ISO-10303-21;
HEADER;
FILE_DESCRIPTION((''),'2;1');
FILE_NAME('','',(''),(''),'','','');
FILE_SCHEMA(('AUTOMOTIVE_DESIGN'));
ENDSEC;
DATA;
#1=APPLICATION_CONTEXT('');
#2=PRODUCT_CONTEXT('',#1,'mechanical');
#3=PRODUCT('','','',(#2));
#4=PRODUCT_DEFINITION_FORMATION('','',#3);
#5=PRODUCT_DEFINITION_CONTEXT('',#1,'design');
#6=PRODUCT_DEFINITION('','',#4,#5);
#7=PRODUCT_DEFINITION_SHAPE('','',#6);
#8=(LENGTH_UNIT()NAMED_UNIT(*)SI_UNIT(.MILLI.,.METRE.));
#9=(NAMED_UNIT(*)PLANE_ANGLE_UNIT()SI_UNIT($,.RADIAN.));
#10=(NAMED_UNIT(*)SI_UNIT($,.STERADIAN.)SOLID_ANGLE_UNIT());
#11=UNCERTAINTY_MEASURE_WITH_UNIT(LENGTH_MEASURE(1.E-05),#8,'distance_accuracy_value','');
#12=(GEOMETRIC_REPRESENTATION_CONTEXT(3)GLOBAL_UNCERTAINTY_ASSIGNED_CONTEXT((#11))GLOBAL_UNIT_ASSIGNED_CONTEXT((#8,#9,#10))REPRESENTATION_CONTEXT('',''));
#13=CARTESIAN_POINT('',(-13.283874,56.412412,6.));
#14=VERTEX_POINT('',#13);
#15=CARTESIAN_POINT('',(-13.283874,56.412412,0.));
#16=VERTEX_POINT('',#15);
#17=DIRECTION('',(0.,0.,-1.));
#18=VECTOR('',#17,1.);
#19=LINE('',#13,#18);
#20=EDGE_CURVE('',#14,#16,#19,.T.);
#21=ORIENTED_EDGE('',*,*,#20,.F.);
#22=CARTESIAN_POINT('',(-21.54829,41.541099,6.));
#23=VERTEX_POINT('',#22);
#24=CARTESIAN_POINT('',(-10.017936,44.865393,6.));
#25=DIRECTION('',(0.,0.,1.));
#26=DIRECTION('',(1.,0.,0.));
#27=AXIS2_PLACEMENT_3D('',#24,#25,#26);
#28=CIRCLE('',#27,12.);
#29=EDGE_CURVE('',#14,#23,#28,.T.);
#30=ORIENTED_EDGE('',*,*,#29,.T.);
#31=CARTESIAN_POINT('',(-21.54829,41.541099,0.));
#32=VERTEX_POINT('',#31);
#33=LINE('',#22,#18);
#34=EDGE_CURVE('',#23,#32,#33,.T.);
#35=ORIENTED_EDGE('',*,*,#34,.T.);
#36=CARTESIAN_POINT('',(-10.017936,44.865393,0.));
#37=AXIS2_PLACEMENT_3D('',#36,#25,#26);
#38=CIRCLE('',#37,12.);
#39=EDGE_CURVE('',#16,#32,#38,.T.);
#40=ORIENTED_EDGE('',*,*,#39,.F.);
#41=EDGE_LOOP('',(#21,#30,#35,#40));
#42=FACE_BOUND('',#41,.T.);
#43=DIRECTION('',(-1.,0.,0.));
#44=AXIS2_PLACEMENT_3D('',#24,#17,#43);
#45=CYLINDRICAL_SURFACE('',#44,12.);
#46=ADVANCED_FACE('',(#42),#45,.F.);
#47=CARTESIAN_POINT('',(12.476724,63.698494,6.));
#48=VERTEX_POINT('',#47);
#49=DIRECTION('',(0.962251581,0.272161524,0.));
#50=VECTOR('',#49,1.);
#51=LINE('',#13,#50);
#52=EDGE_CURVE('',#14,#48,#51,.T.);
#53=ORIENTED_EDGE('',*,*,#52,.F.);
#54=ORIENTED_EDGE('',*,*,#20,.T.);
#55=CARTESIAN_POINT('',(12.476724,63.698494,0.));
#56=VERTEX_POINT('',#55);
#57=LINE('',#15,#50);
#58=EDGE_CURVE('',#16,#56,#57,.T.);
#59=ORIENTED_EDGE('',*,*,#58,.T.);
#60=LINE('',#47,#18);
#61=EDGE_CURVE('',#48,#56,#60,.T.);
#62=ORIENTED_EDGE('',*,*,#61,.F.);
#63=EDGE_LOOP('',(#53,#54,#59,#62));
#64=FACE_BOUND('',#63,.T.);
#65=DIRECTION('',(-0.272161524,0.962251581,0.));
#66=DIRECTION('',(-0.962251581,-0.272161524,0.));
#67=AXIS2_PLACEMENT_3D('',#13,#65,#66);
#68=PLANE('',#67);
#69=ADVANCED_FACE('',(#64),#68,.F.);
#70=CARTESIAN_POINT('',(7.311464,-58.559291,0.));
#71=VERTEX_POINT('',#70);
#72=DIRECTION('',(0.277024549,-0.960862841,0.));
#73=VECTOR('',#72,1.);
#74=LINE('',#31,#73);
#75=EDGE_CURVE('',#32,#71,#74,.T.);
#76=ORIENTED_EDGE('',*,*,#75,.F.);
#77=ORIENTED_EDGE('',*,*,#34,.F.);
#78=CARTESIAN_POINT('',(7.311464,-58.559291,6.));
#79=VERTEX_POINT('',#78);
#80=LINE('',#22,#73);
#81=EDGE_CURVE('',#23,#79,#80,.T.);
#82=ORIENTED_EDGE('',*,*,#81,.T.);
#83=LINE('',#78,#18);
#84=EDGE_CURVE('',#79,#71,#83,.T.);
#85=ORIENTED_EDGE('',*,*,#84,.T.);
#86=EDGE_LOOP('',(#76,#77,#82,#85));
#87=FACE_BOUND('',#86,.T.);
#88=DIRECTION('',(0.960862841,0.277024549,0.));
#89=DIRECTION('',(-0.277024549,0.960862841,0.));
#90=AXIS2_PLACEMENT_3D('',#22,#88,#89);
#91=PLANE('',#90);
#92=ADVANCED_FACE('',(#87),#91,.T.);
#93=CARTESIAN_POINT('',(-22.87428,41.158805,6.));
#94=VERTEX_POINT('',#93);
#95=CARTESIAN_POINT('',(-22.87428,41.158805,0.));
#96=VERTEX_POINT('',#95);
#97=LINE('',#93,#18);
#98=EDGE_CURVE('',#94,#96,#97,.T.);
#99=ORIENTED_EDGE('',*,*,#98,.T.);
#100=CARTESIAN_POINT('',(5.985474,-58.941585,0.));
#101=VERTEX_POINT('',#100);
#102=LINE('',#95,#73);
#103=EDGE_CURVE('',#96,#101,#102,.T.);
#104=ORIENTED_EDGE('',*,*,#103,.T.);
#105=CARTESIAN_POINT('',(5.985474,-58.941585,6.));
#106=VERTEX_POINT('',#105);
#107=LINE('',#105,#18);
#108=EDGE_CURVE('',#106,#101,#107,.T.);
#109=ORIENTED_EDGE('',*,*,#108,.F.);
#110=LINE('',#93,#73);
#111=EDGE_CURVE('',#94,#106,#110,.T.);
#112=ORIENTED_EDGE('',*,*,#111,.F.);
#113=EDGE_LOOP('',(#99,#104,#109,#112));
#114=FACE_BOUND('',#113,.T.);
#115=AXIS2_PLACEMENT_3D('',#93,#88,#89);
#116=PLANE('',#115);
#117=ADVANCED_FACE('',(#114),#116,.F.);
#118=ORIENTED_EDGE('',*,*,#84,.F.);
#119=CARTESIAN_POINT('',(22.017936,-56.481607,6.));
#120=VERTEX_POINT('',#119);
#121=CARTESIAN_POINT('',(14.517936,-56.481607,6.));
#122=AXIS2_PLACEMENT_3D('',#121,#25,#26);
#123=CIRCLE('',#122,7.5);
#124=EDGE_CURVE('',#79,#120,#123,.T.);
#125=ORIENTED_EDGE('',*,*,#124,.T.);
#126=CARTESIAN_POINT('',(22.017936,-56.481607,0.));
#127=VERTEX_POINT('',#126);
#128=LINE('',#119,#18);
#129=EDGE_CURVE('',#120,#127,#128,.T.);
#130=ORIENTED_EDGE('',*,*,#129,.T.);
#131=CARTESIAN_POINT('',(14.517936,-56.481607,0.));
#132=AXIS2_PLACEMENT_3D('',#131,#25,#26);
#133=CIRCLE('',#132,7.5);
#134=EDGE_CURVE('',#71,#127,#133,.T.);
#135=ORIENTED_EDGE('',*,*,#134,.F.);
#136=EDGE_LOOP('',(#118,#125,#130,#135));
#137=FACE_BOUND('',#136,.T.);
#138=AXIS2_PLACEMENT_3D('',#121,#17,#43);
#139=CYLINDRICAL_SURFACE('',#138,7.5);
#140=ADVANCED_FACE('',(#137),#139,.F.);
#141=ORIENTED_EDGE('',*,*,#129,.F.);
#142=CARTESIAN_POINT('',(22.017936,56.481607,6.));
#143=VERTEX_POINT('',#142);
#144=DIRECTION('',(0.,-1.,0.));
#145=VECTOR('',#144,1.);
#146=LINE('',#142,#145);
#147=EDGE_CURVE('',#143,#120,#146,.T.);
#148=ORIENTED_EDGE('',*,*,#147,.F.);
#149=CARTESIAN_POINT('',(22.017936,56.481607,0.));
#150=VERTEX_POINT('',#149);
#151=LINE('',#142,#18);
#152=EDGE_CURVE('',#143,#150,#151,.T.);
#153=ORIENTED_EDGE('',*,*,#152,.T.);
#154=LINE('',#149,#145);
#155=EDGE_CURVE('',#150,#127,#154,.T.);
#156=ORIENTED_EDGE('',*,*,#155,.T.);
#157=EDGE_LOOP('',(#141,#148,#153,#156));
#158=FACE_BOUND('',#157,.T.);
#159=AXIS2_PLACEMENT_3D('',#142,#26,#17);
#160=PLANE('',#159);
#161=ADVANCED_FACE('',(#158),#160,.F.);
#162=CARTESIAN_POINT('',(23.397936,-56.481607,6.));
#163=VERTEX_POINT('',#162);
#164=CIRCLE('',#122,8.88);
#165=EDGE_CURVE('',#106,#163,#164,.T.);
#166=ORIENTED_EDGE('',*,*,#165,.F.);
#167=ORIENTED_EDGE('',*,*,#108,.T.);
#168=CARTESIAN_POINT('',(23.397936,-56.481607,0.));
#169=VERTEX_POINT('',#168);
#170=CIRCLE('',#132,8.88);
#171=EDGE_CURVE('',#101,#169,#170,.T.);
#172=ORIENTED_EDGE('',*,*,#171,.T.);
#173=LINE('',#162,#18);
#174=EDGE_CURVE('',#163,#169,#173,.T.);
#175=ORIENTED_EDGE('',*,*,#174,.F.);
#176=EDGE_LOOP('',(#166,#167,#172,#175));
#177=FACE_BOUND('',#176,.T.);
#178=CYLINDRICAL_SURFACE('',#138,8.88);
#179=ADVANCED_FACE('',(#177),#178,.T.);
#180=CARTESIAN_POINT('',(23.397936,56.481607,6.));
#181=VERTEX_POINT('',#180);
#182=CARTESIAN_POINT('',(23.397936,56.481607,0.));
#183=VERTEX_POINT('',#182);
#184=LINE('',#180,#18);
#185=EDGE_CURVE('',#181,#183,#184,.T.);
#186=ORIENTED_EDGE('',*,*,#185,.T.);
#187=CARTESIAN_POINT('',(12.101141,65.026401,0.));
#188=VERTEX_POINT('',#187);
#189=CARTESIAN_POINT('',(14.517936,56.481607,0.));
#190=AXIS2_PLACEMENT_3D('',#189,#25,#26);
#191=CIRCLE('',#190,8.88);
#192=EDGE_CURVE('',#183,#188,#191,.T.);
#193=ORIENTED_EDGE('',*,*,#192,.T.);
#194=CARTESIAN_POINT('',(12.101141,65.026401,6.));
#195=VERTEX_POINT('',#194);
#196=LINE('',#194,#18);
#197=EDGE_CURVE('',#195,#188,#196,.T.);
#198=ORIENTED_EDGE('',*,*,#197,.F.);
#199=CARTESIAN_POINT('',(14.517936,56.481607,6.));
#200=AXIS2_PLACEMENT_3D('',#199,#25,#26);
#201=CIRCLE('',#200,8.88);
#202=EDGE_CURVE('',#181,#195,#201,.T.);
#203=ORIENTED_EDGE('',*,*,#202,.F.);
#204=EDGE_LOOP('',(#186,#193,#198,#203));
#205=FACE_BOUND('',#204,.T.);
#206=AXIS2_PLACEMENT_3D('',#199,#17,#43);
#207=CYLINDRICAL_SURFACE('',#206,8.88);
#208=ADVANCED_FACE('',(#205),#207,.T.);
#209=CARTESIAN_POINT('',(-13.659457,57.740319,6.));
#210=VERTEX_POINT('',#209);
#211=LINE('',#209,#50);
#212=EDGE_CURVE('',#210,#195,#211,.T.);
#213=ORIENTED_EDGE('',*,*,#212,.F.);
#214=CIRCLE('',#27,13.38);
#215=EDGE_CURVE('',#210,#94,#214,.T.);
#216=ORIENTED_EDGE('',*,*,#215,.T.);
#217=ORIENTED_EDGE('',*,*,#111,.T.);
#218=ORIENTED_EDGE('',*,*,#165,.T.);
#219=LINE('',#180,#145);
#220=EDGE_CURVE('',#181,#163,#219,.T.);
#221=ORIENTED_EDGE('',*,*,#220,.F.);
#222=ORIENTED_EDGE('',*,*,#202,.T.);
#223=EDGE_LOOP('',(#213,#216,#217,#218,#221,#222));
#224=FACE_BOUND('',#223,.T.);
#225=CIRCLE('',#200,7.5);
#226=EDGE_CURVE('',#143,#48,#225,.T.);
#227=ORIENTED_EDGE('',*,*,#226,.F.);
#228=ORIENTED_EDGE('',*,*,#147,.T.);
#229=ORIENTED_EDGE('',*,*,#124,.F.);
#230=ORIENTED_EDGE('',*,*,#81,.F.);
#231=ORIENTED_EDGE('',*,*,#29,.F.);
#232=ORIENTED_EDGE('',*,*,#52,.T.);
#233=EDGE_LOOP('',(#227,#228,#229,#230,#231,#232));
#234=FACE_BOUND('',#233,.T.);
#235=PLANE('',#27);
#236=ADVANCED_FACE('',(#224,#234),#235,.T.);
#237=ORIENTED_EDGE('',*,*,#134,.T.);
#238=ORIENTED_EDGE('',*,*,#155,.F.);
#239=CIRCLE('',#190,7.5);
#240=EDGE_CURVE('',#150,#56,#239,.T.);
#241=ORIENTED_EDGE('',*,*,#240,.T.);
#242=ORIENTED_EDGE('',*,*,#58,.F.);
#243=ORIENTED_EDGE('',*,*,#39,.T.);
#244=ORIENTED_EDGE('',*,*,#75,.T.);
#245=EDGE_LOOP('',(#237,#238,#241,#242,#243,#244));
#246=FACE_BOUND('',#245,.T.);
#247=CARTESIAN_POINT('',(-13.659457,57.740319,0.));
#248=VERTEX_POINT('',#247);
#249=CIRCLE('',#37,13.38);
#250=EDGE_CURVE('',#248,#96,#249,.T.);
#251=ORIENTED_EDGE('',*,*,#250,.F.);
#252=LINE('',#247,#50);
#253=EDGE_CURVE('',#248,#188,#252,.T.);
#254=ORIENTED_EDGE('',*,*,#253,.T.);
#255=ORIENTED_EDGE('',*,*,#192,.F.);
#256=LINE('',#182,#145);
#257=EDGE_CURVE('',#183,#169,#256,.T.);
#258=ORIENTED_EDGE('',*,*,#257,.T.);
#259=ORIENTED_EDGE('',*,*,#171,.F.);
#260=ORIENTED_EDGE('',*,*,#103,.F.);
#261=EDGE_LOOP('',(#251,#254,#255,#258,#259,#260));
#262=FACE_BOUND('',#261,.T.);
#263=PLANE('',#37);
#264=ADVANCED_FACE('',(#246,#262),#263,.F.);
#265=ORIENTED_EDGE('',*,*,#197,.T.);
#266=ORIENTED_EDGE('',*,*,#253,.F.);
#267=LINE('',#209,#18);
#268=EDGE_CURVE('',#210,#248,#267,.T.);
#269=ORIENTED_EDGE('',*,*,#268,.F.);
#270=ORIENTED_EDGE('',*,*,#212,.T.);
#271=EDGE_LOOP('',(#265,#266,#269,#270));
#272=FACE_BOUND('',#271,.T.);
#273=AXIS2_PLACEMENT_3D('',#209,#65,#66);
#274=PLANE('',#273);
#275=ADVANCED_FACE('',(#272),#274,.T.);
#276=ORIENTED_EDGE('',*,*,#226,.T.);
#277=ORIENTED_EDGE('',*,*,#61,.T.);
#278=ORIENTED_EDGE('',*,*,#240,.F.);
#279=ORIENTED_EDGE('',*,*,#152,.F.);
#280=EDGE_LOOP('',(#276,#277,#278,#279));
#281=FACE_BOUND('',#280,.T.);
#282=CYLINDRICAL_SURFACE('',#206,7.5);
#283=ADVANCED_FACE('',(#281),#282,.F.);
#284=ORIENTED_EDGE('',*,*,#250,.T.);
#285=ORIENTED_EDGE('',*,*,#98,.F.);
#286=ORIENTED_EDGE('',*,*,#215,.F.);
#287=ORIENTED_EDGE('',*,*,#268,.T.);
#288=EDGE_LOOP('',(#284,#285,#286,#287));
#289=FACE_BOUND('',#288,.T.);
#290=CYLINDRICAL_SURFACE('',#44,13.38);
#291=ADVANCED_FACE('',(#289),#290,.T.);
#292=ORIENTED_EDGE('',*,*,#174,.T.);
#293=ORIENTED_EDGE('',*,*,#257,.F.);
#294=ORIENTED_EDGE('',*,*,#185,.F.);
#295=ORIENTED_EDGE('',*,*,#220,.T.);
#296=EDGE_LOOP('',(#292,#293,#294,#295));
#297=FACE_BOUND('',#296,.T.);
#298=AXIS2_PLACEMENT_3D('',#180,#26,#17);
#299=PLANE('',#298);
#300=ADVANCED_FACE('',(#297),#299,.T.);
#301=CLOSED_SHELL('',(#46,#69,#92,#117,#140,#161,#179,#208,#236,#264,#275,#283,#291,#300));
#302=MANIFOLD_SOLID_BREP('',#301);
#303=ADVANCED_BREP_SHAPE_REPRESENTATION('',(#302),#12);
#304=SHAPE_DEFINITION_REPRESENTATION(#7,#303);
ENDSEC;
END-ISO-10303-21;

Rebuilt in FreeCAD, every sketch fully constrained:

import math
import FreeCAD as App
import Part
import Sketcher
from FreeCAD import Vector
Q = App.Units.Quantity

doc = App.newDocument("Part")
body = doc.addObject("PartDesign::Body", "Body")

sketch1 = doc.addObject("Sketcher::SketchObject", "Sketch")
body.addObject(sketch1)
sketch1.AttachmentSupport = (doc.XY_Plane, [""])
sketch1.MapMode = "FlatFace"
sketch1.addGeometry([
    Part.LineSegment(Vector(12, 65, 0), Vector(-14, 58, 0)),
    Part.ArcOfCircle(Part.Circle(Vector(-10, 45, 0), Vector(0, 0, 1), 13), math.radians(106), math.radians(196)),
    Part.LineSegment(Vector(-23, 41, 0), Vector(6, -59, 0)),
    Part.ArcOfCircle(Part.Circle(Vector(15, -56, 0), Vector(0, 0, 1), 9), math.radians(-164), math.radians(0)),
    Part.LineSegment(Vector(23, -56, 0), Vector(23, 56, 0)),
    Part.ArcOfCircle(Part.Circle(Vector(15, 56, 0), Vector(0, 0, 1), 9), math.radians(0), math.radians(106)),
    Part.LineSegment(Vector(-13, 56, 0), Vector(12, 64, 0)),
    Part.ArcOfCircle(Part.Circle(Vector(15, 56, 0), Vector(0, 0, 1), 7), math.radians(0), math.radians(106)),
    Part.LineSegment(Vector(22, 56, 0), Vector(22, -56, 0)),
    Part.ArcOfCircle(Part.Circle(Vector(15, -56, 0), Vector(0, 0, 1), 8), math.radians(-164), math.radians(0)),
    Part.LineSegment(Vector(7, -59, 0), Vector(-22, 42, 0)),
    Part.ArcOfCircle(Part.Circle(Vector(-10, 45, 0), Vector(0, 0, 1), 12), math.radians(106), math.radians(196)),
], False)
sketch1.addConstraint([
    Sketcher.Constraint("Tangent", 0, 2, 1, 1),
    Sketcher.Constraint("Tangent", 1, 2, 2, 1),
    Sketcher.Constraint("Tangent", 2, 2, 3, 1),
    Sketcher.Constraint("Tangent", 3, 2, 4, 1),
    Sketcher.Constraint("Tangent", 4, 2, 5, 1),
    Sketcher.Constraint("Tangent", 5, 2, 0, 1),
    Sketcher.Constraint("Tangent", 6, 2, 7, 2),
    Sketcher.Constraint("Tangent", 7, 1, 8, 1),
    Sketcher.Constraint("Tangent", 8, 2, 9, 2),
    Sketcher.Constraint("Tangent", 9, 1, 10, 1),
    Sketcher.Constraint("Tangent", 10, 2, 11, 2),
    Sketcher.Constraint("Tangent", 11, 1, 6, 1),
    Sketcher.Constraint("Vertical", 4),
    Sketcher.Constraint("Vertical", 8),
    Sketcher.Constraint("Coincident", 7, 3, 5, 3),
    Sketcher.Constraint("Coincident", 9, 3, 3, 3),
    Sketcher.Constraint("Coincident", 11, 3, 1, 3),
    Sketcher.Constraint("Equal", 3, 5),
    Sketcher.Constraint("Parallel", 0, 6),
    Sketcher.Constraint("Radius", 11, Q("12 mm")),
    Sketcher.Constraint("Radius", 7, Q("7.5 mm")),
    Sketcher.Constraint("Radius", 1, Q("13.38 mm")),
    Sketcher.Constraint("DistanceY", 3, 3, 1, 3, Q("101.347 mm")),
    Sketcher.Constraint("DistanceY", -1, 1, 5, 2, Q("65.026401 mm")),
    Sketcher.Constraint("DistanceY", -1, 1, 10, 2, Q("41.541099 mm")),
    Sketcher.Constraint("DistanceX", 0, 2, 5, 2, Q("25.760598 mm")),
    Sketcher.Constraint("DistanceX", 1, 2, -1, 1, Q("22.87428 mm")),
])
pad1 = doc.addObject("PartDesign::Pad", "Pad")
body.addObject(pad1)
pad1.Profile = sketch1
pad1.Length = 6

doc.recompute()
